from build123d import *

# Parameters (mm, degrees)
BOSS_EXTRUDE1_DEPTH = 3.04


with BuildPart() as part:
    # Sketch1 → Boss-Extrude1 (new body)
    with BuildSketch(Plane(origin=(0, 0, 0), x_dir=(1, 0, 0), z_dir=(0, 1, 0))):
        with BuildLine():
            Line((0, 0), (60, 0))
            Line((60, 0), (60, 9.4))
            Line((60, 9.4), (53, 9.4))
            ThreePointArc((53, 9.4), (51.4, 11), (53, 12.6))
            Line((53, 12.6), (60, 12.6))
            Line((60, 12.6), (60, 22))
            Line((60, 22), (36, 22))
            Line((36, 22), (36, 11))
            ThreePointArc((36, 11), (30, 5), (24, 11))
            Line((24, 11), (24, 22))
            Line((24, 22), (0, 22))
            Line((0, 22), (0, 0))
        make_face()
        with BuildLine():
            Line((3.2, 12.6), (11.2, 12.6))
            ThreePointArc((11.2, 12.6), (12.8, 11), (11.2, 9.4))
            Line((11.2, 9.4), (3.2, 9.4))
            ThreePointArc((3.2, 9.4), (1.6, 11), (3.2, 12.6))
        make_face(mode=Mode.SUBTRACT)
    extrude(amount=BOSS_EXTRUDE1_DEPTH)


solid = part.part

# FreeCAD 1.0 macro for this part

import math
import FreeCAD as App
import Part
import Sketcher
from FreeCAD import Vector

doc = App.newDocument("Part")
body = doc.addObject("PartDesign::Body", "Body")

# Sketch on XZ plane
sketch1 = doc.addObject("Sketcher::SketchObject", "Sketch")
body.addObject(sketch1)
sketch1.AttachmentSupport = (doc.XZ_Plane, [""])
sketch1.MapMode = "FlatFace"
sketch1.addGeometry([
    Part.LineSegment(Vector(0, 0, 0), Vector(60, 0, 0)),  # 0
    Part.LineSegment(Vector(60, 0, 0), Vector(60, -9.4, 0)),  # 1
    Part.LineSegment(Vector(60, -9.4, 0), Vector(53, -9.4, 0)),  # 2
    Part.ArcOfCircle(Part.Circle(Vector(53, -11, 0), Vector(0, 0, 1), 1.6), math.radians(90), math.radians(270)),  # 3
    Part.LineSegment(Vector(53, -12.6, 0), Vector(60, -12.6, 0)),  # 4
    Part.LineSegment(Vector(60, -12.6, 0), Vector(60, -22, 0)),  # 5
    Part.LineSegment(Vector(60, -22, 0), Vector(36, -22, 0)),  # 6
    Part.LineSegment(Vector(36, -22, 0), Vector(36, -11, 0)),  # 7
    Part.ArcOfCircle(Part.Circle(Vector(30, -11, 0), Vector(0, 0, 1), 6), math.radians(0), math.radians(180)),  # 8
    Part.LineSegment(Vector(24, -11, 0), Vector(24, -22, 0)),  # 9
    Part.LineSegment(Vector(24, -22, 0), Vector(0, -22, 0)),  # 10
    Part.LineSegment(Vector(0, -22, 0), Vector(0, 0, 0)),  # 11
    Part.ArcOfCircle(Part.Circle(Vector(3.2, -11, 0), Vector(0, 0, 1), 1.6), math.radians(90), math.radians(270)),  # 12
    Part.LineSegment(Vector(3.2, -12.6, 0), Vector(11.2, -12.6, 0)),  # 13
    Part.ArcOfCircle(Part.Circle(Vector(11.2, -11, 0), Vector(0, 0, 1), 1.6), math.radians(-90), math.radians(90)),  # 14
    Part.LineSegment(Vector(11.2, -9.4, 0), Vector(3.2, -9.4, 0)),  # 15
], False)
sketch1.addConstraint([
    Sketcher.Constraint("Coincident", 0, 2, 1, 1),
    Sketcher.Constraint("Coincident", 1, 2, 2, 1),
    Sketcher.Constraint("Tangent", 2, 2, 3, 1),
    Sketcher.Constraint("Tangent", 3, 2, 4, 1),
    Sketcher.Constraint("Coincident", 4, 2, 5, 1),
    Sketcher.Constraint("Coincident", 5, 2, 6, 1),
    Sketcher.Constraint("Coincident", 6, 2, 7, 1),
    Sketcher.Constraint("Tangent", 7, 2, 8, 1),
    Sketcher.Constraint("Tangent", 8, 2, 9, 1),
    Sketcher.Constraint("Coincident", 9, 2, 10, 1),
    Sketcher.Constraint("Coincident", 10, 2, 11, 1),
    Sketcher.Constraint("Coincident", 11, 2, 0, 1),
    Sketcher.Constraint("Tangent", 12, 2, 13, 1),
    Sketcher.Constraint("Tangent", 13, 2, 14, 1),
    Sketcher.Constraint("Tangent", 14, 2, 15, 1),
    Sketcher.Constraint("Tangent", 15, 2, 12, 1),
    Sketcher.Constraint("Horizontal", 0),
    Sketcher.Constraint("Vertical", 1),
    Sketcher.Constraint("Horizontal", 2),
    Sketcher.Constraint("Horizontal", 4),
    Sketcher.Constraint("Vertical", 5),
    Sketcher.Constraint("Horizontal", 6),
    Sketcher.Constraint("Vertical", 7),
    Sketcher.Constraint("Vertical", 9),
    Sketcher.Constraint("Horizontal", 10),
    Sketcher.Constraint("Vertical", 11),
    Sketcher.Constraint("Horizontal", 13),
    Sketcher.Constraint("Horizontal", 15),
    Sketcher.Constraint("Coincident", 11, 2, -1, 1),
    Sketcher.Constraint("Equal", 3, 12),
    Sketcher.Constraint("Horizontal", 3, 3, 8, 3),
    Sketcher.Constraint("Horizontal", 8, 3, 12, 3),
    Sketcher.Constraint("Horizontal", 6, 2, 9, 2),
    Sketcher.Constraint("Vertical", 1, 2, 4, 2),
    Sketcher.Constraint("Equal", 6, 10),
    Sketcher.Constraint("Equal", 1, 5),
    Sketcher.Constraint("Radius", 8, 6.0),
    Sketcher.Constraint("Radius", 3, 1.6),
    Sketcher.Constraint("DistanceX", 0, 1, 0, 2, 60.0),
    Sketcher.Constraint("DistanceX", 2, 2, 2, 1, 7.0),
    Sketcher.Constraint("DistanceX", 13, 1, 13, 2, 8.0),
    Sketcher.Constraint("DistanceY", 7, 1, 7, 2, 11.0),
    Sketcher.Constraint("DistanceX", -1, 1, 12, 3, 3.2),
])
pad1 = doc.addObject("PartDesign::Pad", "Pad")
body.addObject(pad1)
pad1.Profile = sketch1
pad1.Length = 3.04
pad1.Reversed = True

doc.recompute()
